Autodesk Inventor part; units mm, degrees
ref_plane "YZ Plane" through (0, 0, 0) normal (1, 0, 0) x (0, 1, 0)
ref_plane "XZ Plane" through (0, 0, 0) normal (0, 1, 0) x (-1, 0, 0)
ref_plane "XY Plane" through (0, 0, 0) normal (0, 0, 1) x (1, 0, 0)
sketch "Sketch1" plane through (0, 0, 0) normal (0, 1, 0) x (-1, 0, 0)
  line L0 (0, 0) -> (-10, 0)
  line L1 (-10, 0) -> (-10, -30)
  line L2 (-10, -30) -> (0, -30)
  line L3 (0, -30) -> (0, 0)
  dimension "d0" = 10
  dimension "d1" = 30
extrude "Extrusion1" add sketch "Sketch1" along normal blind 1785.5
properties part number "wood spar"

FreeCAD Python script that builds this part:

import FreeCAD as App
import Part
import Sketcher

V = App.Vector
Q = App.Units.Quantity

doc = App.newDocument("Part")
params = doc.addObject("Spreadsheet::Sheet", "Params")
for row, (alias, value) in enumerate([
    ("sketch1_width", "10 mm"),
    ("sketch1_height", "30 mm"),
    ("pad1_length", "1785.5 mm"),
], start=1):
    params.set(f"A{row}", alias)
    params.set(f"B{row}", "=" + value)
    params.setAlias(f"B{row}", alias)

body = doc.addObject("PartDesign::Body", "Body")

# Sketch on XZ plane
sketch1 = doc.addObject("Sketcher::SketchObject", "Sketch")
body.addObject(sketch1)
sketch1.AttachmentSupport = (doc.XZ_Plane, [""])
sketch1.MapMode = "FlatFace"
sketch1.addGeometry([
    Part.LineSegment(V(0, -30, 0), V(0, 0, 0)),
    Part.LineSegment(V(0, 0, 0), V(10, 0, 0)),
    Part.LineSegment(V(10, 0, 0), V(10, -30, 0)),
    Part.LineSegment(V(10, -30, 0), V(0, -30, 0)),
], False)
sketch1.addConstraint([
    Sketcher.Constraint("Coincident", 0, 2, 1, 1),
    Sketcher.Constraint("Coincident", 1, 2, 2, 1),
    Sketcher.Constraint("Coincident", 2, 2, 3, 1),
    Sketcher.Constraint("Coincident", 3, 2, 0, 1),
    Sketcher.Constraint("Vertical", 0),
    Sketcher.Constraint("Horizontal", 1),
    Sketcher.Constraint("Vertical", 2),
    Sketcher.Constraint("Horizontal", 3),
    Sketcher.Constraint("Coincident", 0, 2, -1, 1),
    Sketcher.Constraint("DistanceX", 1, 1, 1, 2, Q("10 mm")),
    Sketcher.Constraint("DistanceY", 0, 1, 0, 2, Q("30 mm")),
])
sketch1.setExpression("Constraints[9]", "Params.sketch1_width")
sketch1.setExpression("Constraints[10]", "Params.sketch1_height")
pad1 = doc.addObject("PartDesign::Pad", "Pad")
body.addObject(pad1)
pad1.Profile = sketch1
pad1.setExpression("Length", "Params.pad1_length")
pad1.Reversed = True

doc.recompute()
